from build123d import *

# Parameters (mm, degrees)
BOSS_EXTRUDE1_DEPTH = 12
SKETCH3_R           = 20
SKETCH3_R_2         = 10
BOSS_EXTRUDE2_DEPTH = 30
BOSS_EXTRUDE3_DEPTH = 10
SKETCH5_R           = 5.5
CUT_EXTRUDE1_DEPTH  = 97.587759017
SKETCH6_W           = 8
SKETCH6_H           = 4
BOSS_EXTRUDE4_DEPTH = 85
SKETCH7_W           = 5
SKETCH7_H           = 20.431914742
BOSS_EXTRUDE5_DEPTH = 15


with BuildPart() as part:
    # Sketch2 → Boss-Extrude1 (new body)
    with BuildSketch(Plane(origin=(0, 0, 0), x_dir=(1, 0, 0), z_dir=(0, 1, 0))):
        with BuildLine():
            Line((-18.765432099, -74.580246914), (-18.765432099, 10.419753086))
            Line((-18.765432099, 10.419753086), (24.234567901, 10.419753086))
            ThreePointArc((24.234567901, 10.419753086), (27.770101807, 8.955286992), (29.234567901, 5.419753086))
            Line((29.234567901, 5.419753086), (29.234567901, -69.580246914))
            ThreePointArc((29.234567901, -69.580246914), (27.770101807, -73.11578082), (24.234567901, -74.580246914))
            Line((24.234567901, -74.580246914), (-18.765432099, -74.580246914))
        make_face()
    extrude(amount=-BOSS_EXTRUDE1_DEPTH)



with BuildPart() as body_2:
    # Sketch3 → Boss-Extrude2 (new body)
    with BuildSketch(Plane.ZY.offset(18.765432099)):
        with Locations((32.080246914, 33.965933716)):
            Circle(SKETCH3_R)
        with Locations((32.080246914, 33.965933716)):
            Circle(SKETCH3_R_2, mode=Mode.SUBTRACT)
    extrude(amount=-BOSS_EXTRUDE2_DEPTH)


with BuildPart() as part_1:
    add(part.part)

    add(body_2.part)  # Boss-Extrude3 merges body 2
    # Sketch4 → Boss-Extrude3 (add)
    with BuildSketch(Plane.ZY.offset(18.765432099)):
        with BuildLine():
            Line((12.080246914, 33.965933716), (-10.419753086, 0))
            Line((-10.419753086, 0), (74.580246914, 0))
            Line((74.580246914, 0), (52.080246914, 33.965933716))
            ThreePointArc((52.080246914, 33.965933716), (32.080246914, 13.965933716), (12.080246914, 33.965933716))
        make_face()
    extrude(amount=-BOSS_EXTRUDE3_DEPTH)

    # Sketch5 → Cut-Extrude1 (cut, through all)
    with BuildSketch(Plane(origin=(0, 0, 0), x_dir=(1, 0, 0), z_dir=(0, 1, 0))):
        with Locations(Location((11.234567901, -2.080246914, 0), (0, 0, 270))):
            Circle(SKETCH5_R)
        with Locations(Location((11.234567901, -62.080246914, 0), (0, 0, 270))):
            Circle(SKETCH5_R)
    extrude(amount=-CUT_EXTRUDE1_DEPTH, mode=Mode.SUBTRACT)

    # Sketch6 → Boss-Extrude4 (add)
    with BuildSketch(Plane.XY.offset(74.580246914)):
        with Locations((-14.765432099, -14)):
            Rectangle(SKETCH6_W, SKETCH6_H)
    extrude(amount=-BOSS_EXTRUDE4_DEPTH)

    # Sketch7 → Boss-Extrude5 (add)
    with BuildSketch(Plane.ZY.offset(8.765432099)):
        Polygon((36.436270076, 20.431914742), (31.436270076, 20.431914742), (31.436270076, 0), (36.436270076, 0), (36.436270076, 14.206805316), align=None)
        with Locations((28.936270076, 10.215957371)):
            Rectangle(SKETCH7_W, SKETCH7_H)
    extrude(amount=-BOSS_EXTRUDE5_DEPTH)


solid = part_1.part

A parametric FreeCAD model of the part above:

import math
import FreeCAD as App
import Part
import Sketcher


def add_polygon(sketch, points):
    """Adds a closed chain of lines whose ends are joined by coincident constraints."""
    first, n = sketch.GeometryCount, len(points)
    for a, b in zip(points, points[1:] + points[:1]):
        sketch.addGeometry(Part.LineSegment(App.Vector(*a, 0), App.Vector(*b, 0)), False)
    for i in range(n):
        sketch.addConstraint(Sketcher.Constraint("Coincident", first + i, 2, first + (i + 1) % n, 1))

doc = App.newDocument("Part")
body = doc.addObject("PartDesign::Body", "Body")

# Sketch on XZ plane
sketch1 = doc.addObject("Sketcher::SketchObject", "Sketch")
body.addObject(sketch1)
sketch1.AttachmentSupport = (doc.XZ_Plane, [""])
sketch1.MapMode = "FlatFace"
sketch1.addGeometry([
    Part.LineSegment(App.Vector(-19, -10, 0), App.Vector(-19, 75, 0)),  # 0
    Part.LineSegment(App.Vector(-19, 75, 0), App.Vector(24, 75, 0)),  # 1
    Part.ArcOfCircle(Part.Circle(App.Vector(24, 70, 0), App.Vector(0, 0, 1), 5), math.radians(0), math.radians(90)),  # 2
    Part.LineSegment(App.Vector(29, 70, 0), App.Vector(29, -5, 0)),  # 3
    Part.ArcOfCircle(Part.Circle(App.Vector(24, -5, 0), App.Vector(0, 0, 1), 5), math.radians(-90), math.radians(0)),  # 4
    Part.LineSegment(App.Vector(24, -10, 0), App.Vector(-19, -10, 0)),  # 5
], False)
sketch1.addConstraint([
    Sketcher.Constraint("Coincident", 0, 2, 1, 1),
    Sketcher.Constraint("Tangent", 1, 2, 2, 2),
    Sketcher.Constraint("Tangent", 2, 1, 3, 1),
    Sketcher.Constraint("Tangent", 3, 2, 4, 2),
    Sketcher.Constraint("Tangent", 4, 1, 5, 1),
    Sketcher.Constraint("Coincident", 5, 2, 0, 1),
    Sketcher.Constraint("Vertical", 0),
    Sketcher.Constraint("Horizontal", 1),
    Sketcher.Constraint("Vertical", 3),
    Sketcher.Constraint("Horizontal", 5),
    Sketcher.Constraint("Equal", 2, 4),
    Sketcher.Constraint("Radius", 2, 5.0),
    Sketcher.Constraint("DistanceX", 1, 1, 1, 2, 43.0),
    Sketcher.Constraint("DistanceY", 0, 1, 0, 2, 85.0),
    Sketcher.Constraint("DistanceX", -1, 1, 2, 3, 24.234568),
    Sketcher.Constraint("DistanceY", -1, 1, 2, 3, 69.580247),
])
pad1 = doc.addObject("PartDesign::Pad", "Pad")
body.addObject(pad1)
pad1.Profile = sketch1
pad1.Length = 12
body2 = doc.addObject("PartDesign::Body", "Body001")

# Sketch on YZ plane
sketch2 = doc.addObject("Sketcher::SketchObject", "Sketch001")
body2.addObject(sketch2)
sketch2.AttachmentSupport = (doc.getObject("YZ_Plane001"), [""])
sketch2.MapMode = "FlatFace"
sketch2.AttachmentOffset = App.Placement(App.Vector(0, 0, -18.765432), App.Rotation())
sketch2.addGeometry([
    Part.Circle(App.Vector(34, 32, 0), App.Vector(0, 0, 1), 20),
    Part.Circle(App.Vector(34, 32, 0), App.Vector(0, 0, 1), 10),
], False)
sketch2.addConstraint([
    Sketcher.Constraint("Coincident", 1, 3, 0, 3),
    Sketcher.Constraint("Diameter", 0, 40.0),
    Sketcher.Constraint("Diameter", 1, 20.0),
    Sketcher.Constraint("DistanceX", -1, 1, 0, 3, 33.965934),
    Sketcher.Constraint("DistanceY", -1, 1, 0, 3, 32.080247),
])
pad2 = doc.addObject("PartDesign::Pad", "Pad001")
body2.addObject(pad2)
pad2.Profile = sketch2
pad2.Length = 30
body.AllowCompound = True
doc.recompute()

boolean = doc.addObject("PartDesign::Boolean", "Boolean")
body.addObject(boolean)
boolean.Type = "Fuse"
boolean.addObjects([body2])

# Sketch on YZ plane
sketch3 = doc.addObject("Sketcher::SketchObject", "Sketch002")
body.addObject(sketch3)
sketch3.AttachmentSupport = (doc.YZ_Plane, [""])
sketch3.MapMode = "FlatFace"
sketch3.AttachmentOffset = App.Placement(App.Vector(0, 0, -18.765432), App.Rotation())
sketch3.addGeometry([
    Part.LineSegment(App.Vector(34, 12, 0), App.Vector(0, -10, 0)),
    Part.LineSegment(App.Vector(0, -10, 0), App.Vector(0, 75, 0)),
    Part.LineSegment(App.Vector(0, 75, 0), App.Vector(34, 52, 0)),
    Part.ArcOfCircle(Part.Circle(App.Vector(34, 32, 0), App.Vector(0, 0, 1), 20), math.radians(90), math.radians(270)),
], False)
sketch3.addConstraint([
    Sketcher.Constraint("Coincident", 0, 2, 1, 1),
    Sketcher.Constraint("Coincident", 1, 2, 2, 1),
    Sketcher.Constraint("Coincident", 2, 2, 3, 1),
    Sketcher.Constraint("Coincident", 3, 2, 0, 1),
    Sketcher.Constraint("Vertical", 1),
    Sketcher.Constraint("PointOnObject", 0, 2, -2),
    Sketcher.Constraint("Vertical", 3, 3, 2, 2),
    Sketcher.Constraint("Vertical", 2, 2, 3, 2),
    Sketcher.Constraint("Equal", 0, 2),
    Sketcher.Constraint("Radius", 3, 20.0),
    Sketcher.Constraint("DistanceY", 1, 1, 1, 2, 85.0),
    Sketcher.Constraint("Distance", 0, 40.742296),
    Sketcher.Constraint("DistanceY", -1, 1, 3, 3, 32.080247),
])
pad3 = doc.addObject("PartDesign::Pad", "Pad002")
body.addObject(pad3)
pad3.Profile = sketch3
pad3.Length = 10

# Sketch on XZ plane
sketch4 = doc.addObject("Sketcher::SketchObject", "Sketch003")
body.addObject(sketch4)
sketch4.AttachmentSupport = (doc.XZ_Plane, [""])
sketch4.MapMode = "FlatFace"
sketch4.addGeometry([
    Part.Circle(App.Vector(11, 2, 0), App.Vector(0, 0, 1), 6),
    Part.Circle(App.Vector(11, 62, 0), App.Vector(0, 0, 1), 6),
], False)
sketch4.addConstraint([
    Sketcher.Constraint("Equal", 0, 1),
    Sketcher.Constraint("Vertical", 0, 3, 1, 3),
    Sketcher.Constraint("Diameter", 0, 11.0),
    Sketcher.Constraint("DistanceY", 0, 3, 1, 3, 60.0),
    Sketcher.Constraint("DistanceX", -1, 1, 0, 3, 11.234568),
    Sketcher.Constraint("DistanceY", -1, 1, 0, 3, 2.080247),
])
pocket1 = doc.addObject("PartDesign::Pocket", "Pocket")
body.addObject(pocket1)
pocket1.Profile = sketch4
pocket1.Type = "ThroughAll"
pocket1.Reversed = True

# Sketch on XY plane
sketch5 = doc.addObject("Sketcher::SketchObject", "Sketch004")
body.addObject(sketch5)
sketch5.AttachmentSupport = (doc.XY_Plane, [""])
sketch5.MapMode = "FlatFace"
sketch5.AttachmentOffset = App.Placement(App.Vector(0, 0, 74.580247), App.Rotation())
add_polygon(sketch5, [(-18.8, -12), (-18.8, -16), (-10.8, -16), (-10.8, -12)])  # lines 0-3
sketch5.addConstraint([
    Sketcher.Constraint("Vertical", 0),
    Sketcher.Constraint("Horizontal", 1),
    Sketcher.Constraint("Vertical", 2),
    Sketcher.Constraint("Horizontal", 3),
    Sketcher.Constraint("DistanceX", 1, 1, 1, 2, 8.0),
    Sketcher.Constraint("DistanceY", 0, 2, 0, 1, 4.0),
    Sketcher.Constraint("DistanceY", 0, 2, -1, 1, 16.0),
    Sketcher.Constraint("DistanceX", 0, 2, -1, 1, 18.765432),
])
pad4 = doc.addObject("PartDesign::Pad", "Pad003")
body.addObject(pad4)
pad4.Profile = sketch5
pad4.Length = 85
pad4.Reversed = True

# Sketch on YZ plane
sketch6 = doc.addObject("Sketcher::SketchObject", "Sketch005")
body.addObject(sketch6)
sketch6.AttachmentSupport = (doc.YZ_Plane, [""])
sketch6.MapMode = "FlatFace"
sketch6.AttachmentOffset = App.Placement(App.Vector(0, 0, -8.765432), App.Rotation())
add_polygon(sketch6, [(20, 36), (20, 26), (0, 26), (0, 36)])  # lines 0-3
sketch6.addConstraint([
    Sketcher.Constraint("Vertical", 0),
    Sketcher.Constraint("Horizontal", 1),
    Sketcher.Constraint("Vertical", 2),
    Sketcher.Constraint("Horizontal", 3),
    Sketcher.Constraint("PointOnObject", 1, 2, -2),
    Sketcher.Constraint("DistanceY", 0, 2, 0, 1, 10.0),
    Sketcher.Constraint("DistanceX", 1, 2, 1, 1, 20.431915),
    Sketcher.Constraint("DistanceY", -1, 1, 0, 2, 26.43627),
])
pad5 = doc.addObject("PartDesign::Pad", "Pad004")
body.addObject(pad5)
pad5.Profile = sketch6
pad5.Length = 15

doc.recompute()
